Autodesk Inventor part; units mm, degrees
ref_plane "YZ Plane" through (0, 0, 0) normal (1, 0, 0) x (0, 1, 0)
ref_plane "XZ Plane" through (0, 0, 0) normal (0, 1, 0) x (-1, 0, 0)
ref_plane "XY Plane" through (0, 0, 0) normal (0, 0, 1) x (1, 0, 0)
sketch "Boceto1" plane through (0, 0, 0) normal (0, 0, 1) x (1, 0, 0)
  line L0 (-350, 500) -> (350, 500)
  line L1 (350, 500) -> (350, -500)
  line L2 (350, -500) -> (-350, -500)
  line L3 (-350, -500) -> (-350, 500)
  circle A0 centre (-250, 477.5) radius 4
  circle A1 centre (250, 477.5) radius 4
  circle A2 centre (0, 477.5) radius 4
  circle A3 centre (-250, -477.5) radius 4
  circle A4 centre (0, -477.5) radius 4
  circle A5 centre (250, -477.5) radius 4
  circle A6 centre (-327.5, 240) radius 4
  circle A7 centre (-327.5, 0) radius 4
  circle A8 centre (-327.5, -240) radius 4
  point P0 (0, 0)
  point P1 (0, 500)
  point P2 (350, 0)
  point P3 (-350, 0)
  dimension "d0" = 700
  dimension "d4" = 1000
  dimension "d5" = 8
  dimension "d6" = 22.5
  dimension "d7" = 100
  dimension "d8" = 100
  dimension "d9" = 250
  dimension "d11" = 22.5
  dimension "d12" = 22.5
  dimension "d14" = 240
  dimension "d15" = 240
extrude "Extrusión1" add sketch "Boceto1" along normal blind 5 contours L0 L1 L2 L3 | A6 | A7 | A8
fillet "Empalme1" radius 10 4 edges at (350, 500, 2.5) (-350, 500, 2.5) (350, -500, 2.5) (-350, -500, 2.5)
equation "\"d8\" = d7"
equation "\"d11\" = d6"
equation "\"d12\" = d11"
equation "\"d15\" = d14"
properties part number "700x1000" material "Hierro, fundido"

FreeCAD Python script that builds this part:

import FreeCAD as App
import Part
import Sketcher


def edges_at(feature, points):
    """Names of the edges that pass closest to the given points."""
    edges = feature.Shape.Edges
    near = lambda p: min(range(len(edges)), key=lambda i: edges[i].distToShape(Part.Vertex(*p))[0])
    return sorted({f"Edge{near(p) + 1}" for p in points})


def add_polygon(sketch, points):
    """Adds a closed chain of lines whose ends are joined by coincident constraints."""
    first, n = sketch.GeometryCount, len(points)
    for a, b in zip(points, points[1:] + points[:1]):
        sketch.addGeometry(Part.LineSegment(App.Vector(*a, 0), App.Vector(*b, 0)), False)
    for i in range(n):
        sketch.addConstraint(Sketcher.Constraint("Coincident", first + i, 2, first + (i + 1) % n, 1))

doc = App.newDocument("Part")
body = doc.addObject("PartDesign::Body", "Body")

# Sketch on XY plane
sketch1 = body.newObject("Sketcher::SketchObject", "Sketch")
sketch1.AttachmentSupport = (doc.getObject("XY_Plane"), [""])
sketch1.MapMode = "FlatFace"
add_polygon(sketch1, [(350, 500), (-350, 500), (-350, -500), (350, -500)])  # lines 0-3
sketch1.addGeometry(Part.Circle(App.Vector(-250, -477.5, 0), App.Vector(0, 0, 1), 4), False)  # 4
sketch1.addGeometry(Part.Circle(App.Vector(0, -477.5, 0), App.Vector(0, 0, 1), 4), False)  # 5
sketch1.addGeometry(Part.Circle(App.Vector(250, -477.5, 0), App.Vector(0, 0, 1), 4), False)  # 6
sketch1.addGeometry(Part.Circle(App.Vector(-250, 477.5, 0), App.Vector(0, 0, 1), 4), False)  # 7
sketch1.addGeometry(Part.Circle(App.Vector(0, 477.5, 0), App.Vector(0, 0, 1), 4), False)  # 8
sketch1.addGeometry(Part.Circle(App.Vector(250, 477.5, 0), App.Vector(0, 0, 1), 4), False)  # 9
sketch1.addConstraint(Sketcher.Constraint("Horizontal", 0))
sketch1.addConstraint(Sketcher.Constraint("Vertical", 1))
sketch1.addConstraint(Sketcher.Constraint("Horizontal", 2))
sketch1.addConstraint(Sketcher.Constraint("Vertical", 3))
sketch1.addConstraint(Sketcher.Constraint("Equal", 4, 5))
sketch1.addConstraint(Sketcher.Constraint("Equal", 5, 6))
sketch1.addConstraint(Sketcher.Constraint("Equal", 6, 7))
sketch1.addConstraint(Sketcher.Constraint("Equal", 7, 8))
sketch1.addConstraint(Sketcher.Constraint("Equal", 8, 9))
sketch1.addConstraint(Sketcher.Constraint("Symmetric", 6, 3, 7, 3, -1, 1))
sketch1.addConstraint(Sketcher.Constraint("Symmetric", 5, 3, 8, 3, -1, 1))
sketch1.addConstraint(Sketcher.Constraint("Symmetric", 4, 3, 9, 3, -1, 1))
sketch1.addConstraint(Sketcher.Constraint("Symmetric", 0, 2, 2, 2, -1, 1))
sketch1.addConstraint(Sketcher.Constraint("Symmetric", 4, 3, 6, 3, -2))
sketch1.addConstraint(Sketcher.Constraint("PointOnObject", 5, 3, -2))
sketch1.addConstraint(Sketcher.Constraint("Horizontal", 4, 3, 5, 3))
sketch1.addConstraint(Sketcher.Constraint("Diameter", 4, 8.0))
sketch1.addConstraint(Sketcher.Constraint("DistanceX", 0, 2, 0, 1, 700.0))
sketch1.addConstraint(Sketcher.Constraint("DistanceY", 1, 2, 1, 1, 1000.0))
sketch1.addConstraint(Sketcher.Constraint("DistanceX", 4, 3, -1, 1, 250.0))
sketch1.addConstraint(Sketcher.Constraint("DistanceY", 7, 3, 0, 2, 22.5))
pad1 = body.newObject("PartDesign::Pad", "Pad")
pad1.Profile = sketch1
pad1.Length = 5
doc.recompute()

fillet = body.newObject("PartDesign::Fillet", "Fillet")
fillet.Base = (pad1, edges_at(pad1, [
    (350, 500, 2.5),
    (-350, 500, 2.5),
    (350, -500, 2.5),
    (-350, -500, 2.5),
]))
fillet.Radius = 10

doc.recompute()
